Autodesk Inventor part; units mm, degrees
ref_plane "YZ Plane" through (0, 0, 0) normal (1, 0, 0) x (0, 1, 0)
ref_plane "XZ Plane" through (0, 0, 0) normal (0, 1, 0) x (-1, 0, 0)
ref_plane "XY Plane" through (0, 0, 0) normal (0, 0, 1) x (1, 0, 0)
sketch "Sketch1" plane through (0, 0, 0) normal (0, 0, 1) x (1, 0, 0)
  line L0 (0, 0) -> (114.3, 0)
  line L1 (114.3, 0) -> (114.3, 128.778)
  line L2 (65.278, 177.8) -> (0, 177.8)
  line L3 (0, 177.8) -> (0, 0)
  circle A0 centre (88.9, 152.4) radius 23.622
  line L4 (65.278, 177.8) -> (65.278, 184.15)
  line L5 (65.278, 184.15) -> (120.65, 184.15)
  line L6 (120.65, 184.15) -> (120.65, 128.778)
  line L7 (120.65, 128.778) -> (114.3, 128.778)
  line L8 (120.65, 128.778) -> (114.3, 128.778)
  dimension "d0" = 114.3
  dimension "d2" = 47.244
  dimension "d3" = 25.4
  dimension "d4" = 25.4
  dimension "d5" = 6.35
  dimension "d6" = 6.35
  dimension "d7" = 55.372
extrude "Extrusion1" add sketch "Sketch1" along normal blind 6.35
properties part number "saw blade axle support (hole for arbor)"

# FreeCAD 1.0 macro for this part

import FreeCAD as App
import Part
import Sketcher
Q = App.Units.Quantity


def add_polygon(sketch, points):
    """Adds a closed chain of lines whose ends are joined by coincident constraints."""
    first, n = sketch.GeometryCount, len(points)
    for a, b in zip(points, points[1:] + points[:1]):
        sketch.addGeometry(Part.LineSegment(App.Vector(*a, 0), App.Vector(*b, 0)), False)
    for i in range(n):
        sketch.addConstraint(Sketcher.Constraint("Coincident", first + i, 2, first + (i + 1) % n, 1))

doc = App.newDocument("Part")
params = doc.addObject("Spreadsheet::Sheet", "Params")
for row, (alias, value) in enumerate([
    ("sketch1_diameter", "1.86 in"),
    ("sketch1_width", "4.5 in"),
    ("sketch1_width2", "0.25 in"),
    ("sketch1_width3", "2.18 in"),
    ("sketch1_height", "7 in"),
    ("pad1_length", "0.25 in"),
], start=1):
    params.set(f"A{row}", alias)
    params.set(f"B{row}", "=" + value)
    params.setAlias(f"B{row}", alias)

body = doc.addObject("PartDesign::Body", "Body")

# Sketch on XY plane
sketch1 = body.newObject("Sketcher::SketchObject", "Sketch")
sketch1.AttachmentSupport = (doc.getObject("XY_Plane"), [""])
sketch1.MapMode = "FlatFace"
add_polygon(sketch1, [(0, 178), (0, 0), (114, 0), (114, 129), (121, 129), (121, 184), (65, 184), (65, 178)])  # lines 0-7
sketch1.addGeometry(Part.Circle(App.Vector(89, 152, 0), App.Vector(0, 0, 1), 24), False)  # 8
sketch1.addConstraint(Sketcher.Constraint("Vertical", 0))
sketch1.addConstraint(Sketcher.Constraint("Horizontal", 1))
sketch1.addConstraint(Sketcher.Constraint("Vertical", 2))
sketch1.addConstraint(Sketcher.Constraint("Horizontal", 3))
sketch1.addConstraint(Sketcher.Constraint("Vertical", 4))
sketch1.addConstraint(Sketcher.Constraint("Horizontal", 5))
sketch1.addConstraint(Sketcher.Constraint("Vertical", 6))
sketch1.addConstraint(Sketcher.Constraint("Horizontal", 7))
sketch1.addConstraint(Sketcher.Constraint("Coincident", 0, 2, -1, 1))
sketch1.addConstraint(Sketcher.Constraint("Equal", 5, 4))
sketch1.addConstraint(Sketcher.Constraint("Equal", 3, 6))
sketch1.addConstraint(Sketcher.Constraint("Diameter", 8, Q("1.86 in")))
sketch1.addConstraint(Sketcher.Constraint("DistanceX", 1, 1, 1, 2, Q("4.5 in")))
sketch1.addConstraint(Sketcher.Constraint("DistanceX", 8, 3, 1, 2, Q("1 in")))
sketch1.addConstraint(Sketcher.Constraint("DistanceY", 8, 3, 6, 2, Q("1 in")))
sketch1.addConstraint(Sketcher.Constraint("DistanceX", 3, 1, 3, 2, Q("0.25 in")))
sketch1.addConstraint(Sketcher.Constraint("DistanceX", 5, 2, 5, 1, Q("2.18 in")))
sketch1.addConstraint(Sketcher.Constraint("DistanceY", 0, 2, 0, 1, Q("7 in")))
sketch1.setExpression("Constraints[19]", "Params.sketch1_diameter")
sketch1.setExpression("Constraints[20]", "Params.sketch1_width")
sketch1.setExpression("Constraints[23]", "Params.sketch1_width2")
sketch1.setExpression("Constraints[24]", "Params.sketch1_width3")
sketch1.setExpression("Constraints[25]", "Params.sketch1_height")
pad1 = body.newObject("PartDesign::Pad", "Pad")
pad1.Profile = sketch1
pad1.setExpression("Length", "Params.pad1_length")

doc.recompute()
